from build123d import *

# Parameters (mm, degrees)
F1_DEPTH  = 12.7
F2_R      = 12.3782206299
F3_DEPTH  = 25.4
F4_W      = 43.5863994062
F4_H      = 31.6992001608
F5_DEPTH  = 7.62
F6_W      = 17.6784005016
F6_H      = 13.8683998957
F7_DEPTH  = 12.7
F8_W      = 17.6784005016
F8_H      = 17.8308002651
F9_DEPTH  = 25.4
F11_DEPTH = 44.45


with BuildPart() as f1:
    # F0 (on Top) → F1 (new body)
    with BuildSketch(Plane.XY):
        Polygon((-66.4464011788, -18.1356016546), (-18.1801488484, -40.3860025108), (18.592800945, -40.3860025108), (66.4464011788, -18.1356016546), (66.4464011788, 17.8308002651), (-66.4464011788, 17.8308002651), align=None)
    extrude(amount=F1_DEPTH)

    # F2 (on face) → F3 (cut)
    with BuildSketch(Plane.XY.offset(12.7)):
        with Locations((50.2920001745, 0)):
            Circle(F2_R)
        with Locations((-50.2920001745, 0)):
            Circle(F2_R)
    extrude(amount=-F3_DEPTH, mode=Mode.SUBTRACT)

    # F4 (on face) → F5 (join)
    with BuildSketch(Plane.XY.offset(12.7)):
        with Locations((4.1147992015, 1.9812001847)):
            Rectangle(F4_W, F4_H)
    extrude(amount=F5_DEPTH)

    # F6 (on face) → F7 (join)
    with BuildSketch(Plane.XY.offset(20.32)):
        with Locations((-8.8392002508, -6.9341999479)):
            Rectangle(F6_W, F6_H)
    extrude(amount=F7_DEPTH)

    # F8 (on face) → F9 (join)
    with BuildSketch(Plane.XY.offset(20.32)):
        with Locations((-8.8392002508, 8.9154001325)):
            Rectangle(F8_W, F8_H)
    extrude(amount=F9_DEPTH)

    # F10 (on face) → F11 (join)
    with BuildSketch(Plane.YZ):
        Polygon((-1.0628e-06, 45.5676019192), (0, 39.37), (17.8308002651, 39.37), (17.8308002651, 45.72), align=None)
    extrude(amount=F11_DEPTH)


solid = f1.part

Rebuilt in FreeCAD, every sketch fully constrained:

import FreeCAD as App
import Part
import Sketcher

V = App.Vector
Q = App.Units.Quantity

doc = App.newDocument("Part")
body = doc.addObject("PartDesign::Body", "Body")

sketch1 = body.newObject("Sketcher::SketchObject", "Sketch")
sketch1.AttachmentSupport = (doc.getObject("XY_Plane"), [""])
sketch1.MapMode = "FlatFace"
sketch1.addGeometry([
    Part.LineSegment(V(-66, -18, 0), V(-18, -40, 0)),
    Part.LineSegment(V(-18, -40, 0), V(19, -40, 0)),
    Part.LineSegment(V(19, -40, 0), V(66, -18, 0)),
    Part.LineSegment(V(66, -18, 0), V(66, 18, 0)),
    Part.LineSegment(V(66, 18, 0), V(-66, 18, 0)),
    Part.LineSegment(V(-66, 18, 0), V(-66, -18, 0)),
], False)
sketch1.addConstraint([
    Sketcher.Constraint("Coincident", 0, 2, 1, 1),
    Sketcher.Constraint("Coincident", 1, 2, 2, 1),
    Sketcher.Constraint("Coincident", 2, 2, 3, 1),
    Sketcher.Constraint("Coincident", 3, 2, 4, 1),
    Sketcher.Constraint("Coincident", 4, 2, 5, 1),
    Sketcher.Constraint("Coincident", 5, 2, 0, 1),
    Sketcher.Constraint("Horizontal", 1),
    Sketcher.Constraint("Vertical", 3),
    Sketcher.Constraint("Horizontal", 4),
    Sketcher.Constraint("Vertical", 5),
    Sketcher.Constraint("Symmetric", 2, 2, 5, 2, -2),
    Sketcher.Constraint("DistanceX", 4, 2, 4, 1, Q("5.2320001 in")),
    Sketcher.Constraint("DistanceY", 3, 1, 3, 2, Q("1.4160001 in")),
    Sketcher.Constraint("DistanceY", 0, 2, -1, 1, Q("1.5900001 in")),
    Sketcher.Constraint("DistanceX", -1, 1, 1, 2, Q("0.732 in")),
    Sketcher.Constraint("DistanceY", 2, 2, -1, 1, Q("0.7140001 in")),
    Sketcher.Constraint("DistanceX", 1, 1, 1, 2, Q("36.77295 mm")),
])
pad1 = body.newObject("PartDesign::Pad", "Pad")
pad1.Profile = sketch1
pad1.Length = Q("0.5 in")

sketch2 = body.newObject("Sketcher::SketchObject", "Sketch001")
sketch2.AttachmentSupport = (doc.getObject("XY_Plane"), [""])
sketch2.MapMode = "FlatFace"
sketch2.AttachmentOffset = App.Placement(V(0, 0, 0.5 * 25.4), App.Rotation())
sketch2.addGeometry([
    Part.Circle(V(50, 0, 0), V(0, 0, 1), 12),
    Part.Circle(V(-50, 0, 0), V(0, 0, 1), 12),
], False)
sketch2.addConstraint([
    Sketcher.Constraint("Equal", 0, 1),
    Sketcher.Constraint("Symmetric", 0, 3, 1, 3, -1, 1),
    Sketcher.Constraint("PointOnObject", 0, 3, -1),
    Sketcher.Constraint("DistanceX", -1, 1, 0, 3, Q("1.98 in")),
    Sketcher.Constraint("Diameter", 0, Q("24.756441 mm")),
])
pocket1 = body.newObject("PartDesign::Pocket", "Pocket")
pocket1.Profile = sketch2
pocket1.Length = Q("1 in")

sketch3 = body.newObject("Sketcher::SketchObject", "Sketch002")
sketch3.AttachmentSupport = (doc.getObject("XY_Plane"), [""])
sketch3.MapMode = "FlatFace"
sketch3.AttachmentOffset = App.Placement(V(0, 0, 0.5 * 25.4), App.Rotation())
sketch3.addGeometry([
    Part.LineSegment(V(-18, 18, 0), V(-18, -14, 0)),
    Part.LineSegment(V(-18, -14, 0), V(26, -14, 0)),
    Part.LineSegment(V(26, -14, 0), V(26, 18, 0)),
    Part.LineSegment(V(26, 18, 0), V(-18, 18, 0)),
], False)
sketch3.addConstraint([
    Sketcher.Constraint("Coincident", 0, 2, 1, 1),
    Sketcher.Constraint("Coincident", 1, 2, 2, 1),
    Sketcher.Constraint("Coincident", 2, 2, 3, 1),
    Sketcher.Constraint("Coincident", 3, 2, 0, 1),
    Sketcher.Constraint("Vertical", 0),
    Sketcher.Constraint("Horizontal", 1),
    Sketcher.Constraint("Vertical", 2),
    Sketcher.Constraint("Horizontal", 3),
    Sketcher.Constraint("DistanceX", 1, 1, 1, 2, Q("1.716 in")),
    Sketcher.Constraint("DistanceY", 0, 2, 0, 1, Q("1.248 in")),
    Sketcher.Constraint("DistanceX", -1, 1, 1, 2, Q("1.02 in")),
    Sketcher.Constraint("DistanceY", 0, 2, -1, 1, Q("0.546 in")),
])
pad2 = body.newObject("PartDesign::Pad", "Pad001")
pad2.Profile = sketch3
pad2.Length = Q("0.3 in")

sketch4 = body.newObject("Sketcher::SketchObject", "Sketch003")
sketch4.AttachmentSupport = (doc.getObject("XY_Plane"), [""])
sketch4.MapMode = "FlatFace"
sketch4.AttachmentOffset = App.Placement(V(0, 0, 0.8 * 25.4), App.Rotation())
sketch4.addGeometry([
    Part.LineSegment(V(-18, 0, 0), V(-18, -14, 0)),
    Part.LineSegment(V(-18, -14, 0), V(0, -14, 0)),
    Part.LineSegment(V(0, -14, 0), V(0, 0, 0)),
    Part.LineSegment(V(0, 0, 0), V(-18, 0, 0)),
], False)
sketch4.addConstraint([
    Sketcher.Constraint("Coincident", 0, 2, 1, 1),
    Sketcher.Constraint("Coincident", 1, 2, 2, 1),
    Sketcher.Constraint("Coincident", 2, 2, 3, 1),
    Sketcher.Constraint("Coincident", 3, 2, 0, 1),
    Sketcher.Constraint("Vertical", 0),
    Sketcher.Constraint("Horizontal", 1),
    Sketcher.Constraint("Vertical", 2),
    Sketcher.Constraint("Horizontal", 3),
    Sketcher.Constraint("Coincident", 2, 2, -1, 1),
    Sketcher.Constraint("DistanceX", 1, 1, 1, 2, Q("0.696 in")),
    Sketcher.Constraint("DistanceY", 0, 2, 0, 1, Q("0.546 in")),
])
pad3 = body.newObject("PartDesign::Pad", "Pad002")
pad3.Profile = sketch4
pad3.Length = Q("0.5 in")

sketch5 = body.newObject("Sketcher::SketchObject", "Sketch004")
sketch5.AttachmentSupport = (doc.getObject("XY_Plane"), [""])
sketch5.MapMode = "FlatFace"
sketch5.AttachmentOffset = App.Placement(V(0, 0, 0.8 * 25.4), App.Rotation())
sketch5.addGeometry([
    Part.LineSegment(V(-18, 18, 0), V(-18, 0, 0)),
    Part.LineSegment(V(-18, 0, 0), V(0, 0, 0)),
    Part.LineSegment(V(0, 0, 0), V(0, 18, 0)),
    Part.LineSegment(V(0, 18, 0), V(-18, 18, 0)),
], False)
sketch5.addConstraint([
    Sketcher.Constraint("Coincident", 0, 2, 1, 1),
    Sketcher.Constraint("Coincident", 1, 2, 2, 1),
    Sketcher.Constraint("Coincident", 2, 2, 3, 1),
    Sketcher.Constraint("Coincident", 3, 2, 0, 1),
    Sketcher.Constraint("Vertical", 0),
    Sketcher.Constraint("Horizontal", 1),
    Sketcher.Constraint("Vertical", 2),
    Sketcher.Constraint("Horizontal", 3),
    Sketcher.Constraint("Coincident", 1, 2, -1, 1),
    Sketcher.Constraint("DistanceX", 1, 1, 1, 2, Q("0.696 in")),
    Sketcher.Constraint("DistanceY", 0, 2, 0, 1, Q("0.702 in")),
])
pad4 = body.newObject("PartDesign::Pad", "Pad003")
pad4.Profile = sketch5
pad4.Length = Q("1 in")

sketch6 = body.newObject("Sketcher::SketchObject", "Sketch005")
sketch6.AttachmentSupport = (doc.getObject("YZ_Plane"), [""])
sketch6.MapMode = "FlatFace"
sketch6.addGeometry([
    Part.LineSegment(V(0, 46, 0), V(0, 39, 0)),
    Part.LineSegment(V(0, 39, 0), V(18, 39, 0)),
    Part.LineSegment(V(18, 39, 0), V(18, 46, 0)),
    Part.LineSegment(V(18, 46, 0), V(0, 46, 0)),
], False)
sketch6.addConstraint([
    Sketcher.Constraint("Coincident", 0, 2, 1, 1),
    Sketcher.Constraint("Coincident", 1, 2, 2, 1),
    Sketcher.Constraint("Coincident", 2, 2, 3, 1),
    Sketcher.Constraint("Coincident", 3, 2, 0, 1),
    Sketcher.Constraint("Vertical", 0),
    Sketcher.Constraint("Horizontal", 1),
    Sketcher.Constraint("Vertical", 2),
    Sketcher.Constraint("PointOnObject", 0, 2, -2),
    Sketcher.Constraint("DistanceY", 2, 1, 2, 2, Q("0.25 in")),
    Sketcher.Constraint("DistanceY", -1, 1, 2, 2, Q("1.8 in")),
    Sketcher.Constraint("DistanceX", 1, 1, 1, 2, Q("0.702 in")),
    Sketcher.Constraint("DistanceY", 0, 2, 0, 1, Q("0.2440001 in")),
])
pad5 = body.newObject("PartDesign::Pad", "Pad004")
pad5.Profile = sketch6
pad5.Length = Q("1.75 in")

doc.recompute()
